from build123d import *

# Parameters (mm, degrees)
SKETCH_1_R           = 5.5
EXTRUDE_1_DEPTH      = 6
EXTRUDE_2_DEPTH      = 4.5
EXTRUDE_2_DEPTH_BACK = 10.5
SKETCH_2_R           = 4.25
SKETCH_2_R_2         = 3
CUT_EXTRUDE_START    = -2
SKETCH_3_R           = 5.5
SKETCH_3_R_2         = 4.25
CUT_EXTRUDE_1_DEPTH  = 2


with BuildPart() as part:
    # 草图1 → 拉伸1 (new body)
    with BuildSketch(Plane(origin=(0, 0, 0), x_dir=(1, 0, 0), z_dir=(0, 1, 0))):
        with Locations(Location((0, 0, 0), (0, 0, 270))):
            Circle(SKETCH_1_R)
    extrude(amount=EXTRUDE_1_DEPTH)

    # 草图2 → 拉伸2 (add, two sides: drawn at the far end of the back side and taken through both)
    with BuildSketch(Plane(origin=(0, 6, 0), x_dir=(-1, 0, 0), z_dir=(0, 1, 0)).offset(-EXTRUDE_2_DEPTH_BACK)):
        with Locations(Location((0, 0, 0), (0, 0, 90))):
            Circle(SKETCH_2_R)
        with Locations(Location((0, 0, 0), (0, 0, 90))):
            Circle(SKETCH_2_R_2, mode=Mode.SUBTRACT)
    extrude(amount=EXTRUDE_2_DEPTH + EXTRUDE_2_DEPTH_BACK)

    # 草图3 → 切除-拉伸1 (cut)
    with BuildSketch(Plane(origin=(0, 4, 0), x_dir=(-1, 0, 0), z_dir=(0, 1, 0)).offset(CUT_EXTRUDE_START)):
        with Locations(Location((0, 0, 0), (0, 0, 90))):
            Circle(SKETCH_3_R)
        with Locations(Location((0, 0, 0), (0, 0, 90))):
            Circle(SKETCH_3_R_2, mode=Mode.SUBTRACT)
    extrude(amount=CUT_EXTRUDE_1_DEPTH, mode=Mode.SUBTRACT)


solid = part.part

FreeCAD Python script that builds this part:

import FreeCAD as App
import Part
import Sketcher

doc = App.newDocument("Part")
body = doc.addObject("PartDesign::Body", "Body")

# Sketch on XZ plane
sketch1 = body.newObject("Sketcher::SketchObject", "Sketch")
sketch1.AttachmentSupport = (doc.getObject("XZ_Plane"), [""])
sketch1.MapMode = "FlatFace"
sketch1.addGeometry(Part.Circle(App.Vector(0, 0, 0), App.Vector(0, 0, 1), 6), False)
sketch1.addConstraint([
    Sketcher.Constraint("Coincident", 0, 3, -1, 1),
    Sketcher.Constraint("Diameter", 0, 11.0),
])
pad1 = body.newObject("PartDesign::Pad", "Pad")
pad1.Profile = sketch1
pad1.Length = 6
pad1.Reversed = True

# Sketch on XZ plane
sketch2 = body.newObject("Sketcher::SketchObject", "Sketch001")
sketch2.AttachmentSupport = (doc.getObject("XZ_Plane"), [""])
sketch2.MapMode = "FlatFace"
sketch2.AttachmentOffset = App.Placement(App.Vector(0, 0, -6), App.Rotation())
sketch2.addGeometry([
    Part.Circle(App.Vector(0, 0, 0), App.Vector(0, 0, 1), 4.2),
    Part.Circle(App.Vector(0, 0, 0), App.Vector(0, 0, 1), 3),
], False)
sketch2.addConstraint([
    Sketcher.Constraint("Coincident", 0, 3, -1, 1),
    Sketcher.Constraint("Coincident", 1, 3, -1, 1),
    Sketcher.Constraint("Diameter", 1, 6.0),
    Sketcher.Constraint("Diameter", 0, 8.5),
])
pad2 = body.newObject("PartDesign::Pad", "Pad001")
pad2.Profile = sketch2
pad2.Type = "TwoLengths"
pad2.Length = 4.5
pad2.Length2 = 10.5
pad2.Reversed = True

# Sketch on XZ plane
sketch3 = body.newObject("Sketcher::SketchObject", "Sketch002")
sketch3.AttachmentSupport = (doc.getObject("XZ_Plane"), [""])
sketch3.MapMode = "FlatFace"
sketch3.AttachmentOffset = App.Placement(App.Vector(0, 0, -2), App.Rotation())
sketch3.addGeometry([
    Part.Circle(App.Vector(0, 0, 0), App.Vector(0, 0, 1), 5.5),
    Part.Circle(App.Vector(0, 0, 0), App.Vector(0, 0, 1), 4.2),
], False)
sketch3.addConstraint([
    Sketcher.Constraint("Coincident", 0, 3, -1, 1),
    Sketcher.Constraint("Coincident", 1, 3, -1, 1),
    Sketcher.Constraint("Diameter", 0, 11.0),
    Sketcher.Constraint("Diameter", 1, 8.5),
])
pocket1 = body.newObject("PartDesign::Pocket", "Pocket")
pocket1.Profile = sketch3
pocket1.Length = 2

doc.recompute()
